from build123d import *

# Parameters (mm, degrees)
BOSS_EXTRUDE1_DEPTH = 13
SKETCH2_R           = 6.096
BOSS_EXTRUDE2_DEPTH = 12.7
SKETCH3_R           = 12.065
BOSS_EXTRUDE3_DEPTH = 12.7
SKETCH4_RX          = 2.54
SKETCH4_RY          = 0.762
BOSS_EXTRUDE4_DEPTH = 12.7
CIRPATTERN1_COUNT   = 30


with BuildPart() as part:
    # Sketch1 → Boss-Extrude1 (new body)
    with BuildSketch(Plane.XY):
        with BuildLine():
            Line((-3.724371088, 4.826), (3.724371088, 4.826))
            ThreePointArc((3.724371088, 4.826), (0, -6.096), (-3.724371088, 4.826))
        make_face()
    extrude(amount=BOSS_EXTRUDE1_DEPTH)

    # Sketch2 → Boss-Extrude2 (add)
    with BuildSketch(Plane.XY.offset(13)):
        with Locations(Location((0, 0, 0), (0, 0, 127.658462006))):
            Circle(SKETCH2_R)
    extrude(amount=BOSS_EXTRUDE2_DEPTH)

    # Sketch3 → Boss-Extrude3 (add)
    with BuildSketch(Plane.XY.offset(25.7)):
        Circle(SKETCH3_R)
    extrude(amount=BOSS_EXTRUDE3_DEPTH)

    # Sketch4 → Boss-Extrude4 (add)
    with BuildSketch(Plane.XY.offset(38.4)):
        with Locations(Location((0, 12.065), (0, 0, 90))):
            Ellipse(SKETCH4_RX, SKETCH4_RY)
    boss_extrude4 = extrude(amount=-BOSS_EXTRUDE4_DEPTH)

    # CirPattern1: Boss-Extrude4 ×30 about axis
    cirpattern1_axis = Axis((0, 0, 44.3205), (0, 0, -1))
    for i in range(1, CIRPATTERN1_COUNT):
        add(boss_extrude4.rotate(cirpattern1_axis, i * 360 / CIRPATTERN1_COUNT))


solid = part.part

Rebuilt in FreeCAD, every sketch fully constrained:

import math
import FreeCAD as App
import Part
import Sketcher

V = App.Vector
Q = App.Units.Quantity

doc = App.newDocument("Part")
body = doc.addObject("PartDesign::Body", "Body")

sketch1 = doc.addObject("Sketcher::SketchObject", "Sketch")
body.addObject(sketch1)
sketch1.AttachmentSupport = (doc.XY_Plane, [""])
sketch1.MapMode = "FlatFace"
sketch1.addGeometry([
    Part.LineSegment(V(4, 5, 0), V(-4, 5, 0)),
    Part.ArcOfCircle(Part.Circle(V(0, 0, 0), V(0, 0, 1), 6), math.radians(128), math.radians(412)),
], False)
sketch1.addConstraint([
    Sketcher.Constraint("Coincident", 0, 1, 1, 2),
    Sketcher.Constraint("Coincident", 1, 1, 0, 2),
    Sketcher.Constraint("Horizontal", 0),
    Sketcher.Constraint("Coincident", 1, 3, -1, 1),
    Sketcher.Constraint("Radius", 1, Q("0.24 in")),
    Sketcher.Constraint("DistanceY", -1, 1, 0, 1, Q("0.19 in")),
])
pad1 = doc.addObject("PartDesign::Pad", "Pad")
body.addObject(pad1)
pad1.Profile = sketch1
pad1.Length = 13

sketch2 = doc.addObject("Sketcher::SketchObject", "Sketch001")
body.addObject(sketch2)
sketch2.AttachmentSupport = (doc.XY_Plane, [""])
sketch2.MapMode = "FlatFace"
sketch2.AttachmentOffset = App.Placement(V(0, 0, 13), App.Rotation())
sketch2.addGeometry(Part.Circle(V(0, 0, 0), V(0, 0, 1), 6), False)
sketch2.addConstraint([
    Sketcher.Constraint("Coincident", 0, 3, -1, 1),
    Sketcher.Constraint("Diameter", 0, Q("0.48 in")),
])
pad2 = doc.addObject("PartDesign::Pad", "Pad001")
body.addObject(pad2)
pad2.Profile = sketch2
pad2.Length = Q("0.5 in")

sketch3 = doc.addObject("Sketcher::SketchObject", "Sketch002")
body.addObject(sketch3)
sketch3.AttachmentSupport = (doc.XY_Plane, [""])
sketch3.MapMode = "FlatFace"
sketch3.AttachmentOffset = App.Placement(V(0, 0, 25.7), App.Rotation())
sketch3.addGeometry(Part.Circle(V(0, 0, 0), V(0, 0, 1), 12), False)
sketch3.addConstraint([
    Sketcher.Constraint("Coincident", 0, 3, -1, 1),
    Sketcher.Constraint("Diameter", 0, Q("0.95 in")),
])
pad3 = doc.addObject("PartDesign::Pad", "Pad002")
body.addObject(pad3)
pad3.Profile = sketch3
pad3.Length = Q("0.5 in")

sketch4 = doc.addObject("Sketcher::SketchObject", "Sketch003")
body.addObject(sketch4)
sketch4.AttachmentSupport = (doc.XY_Plane, [""])
sketch4.MapMode = "FlatFace"
sketch4.AttachmentOffset = App.Placement(V(0, 0, 38.4), App.Rotation())
sketch4.addGeometry(Part.Ellipse(V(0, 14.605, 0), V(-0.762, 12.065, 0), V(0, 12.065, 0)), False)
sketch4.addConstraint(Sketcher.Constraint("Block", 0))
pad4 = doc.addObject("PartDesign::Pad", "Pad003")
body.addObject(pad4)
pad4.Profile = sketch4
pad4.Length = Q("0.5 in")
pad4.Reversed = True
doc.recompute()

polarpattern = doc.addObject("PartDesign::PolarPattern", "PolarPattern")
body.addObject(polarpattern)
polarpattern.Originals = [pad4]
polarpattern.Axis = (doc.Z_Axis, [""])
polarpattern.Angle = 360
polarpattern.Occurrences = 30
body.Tip = polarpattern

doc.recompute()
